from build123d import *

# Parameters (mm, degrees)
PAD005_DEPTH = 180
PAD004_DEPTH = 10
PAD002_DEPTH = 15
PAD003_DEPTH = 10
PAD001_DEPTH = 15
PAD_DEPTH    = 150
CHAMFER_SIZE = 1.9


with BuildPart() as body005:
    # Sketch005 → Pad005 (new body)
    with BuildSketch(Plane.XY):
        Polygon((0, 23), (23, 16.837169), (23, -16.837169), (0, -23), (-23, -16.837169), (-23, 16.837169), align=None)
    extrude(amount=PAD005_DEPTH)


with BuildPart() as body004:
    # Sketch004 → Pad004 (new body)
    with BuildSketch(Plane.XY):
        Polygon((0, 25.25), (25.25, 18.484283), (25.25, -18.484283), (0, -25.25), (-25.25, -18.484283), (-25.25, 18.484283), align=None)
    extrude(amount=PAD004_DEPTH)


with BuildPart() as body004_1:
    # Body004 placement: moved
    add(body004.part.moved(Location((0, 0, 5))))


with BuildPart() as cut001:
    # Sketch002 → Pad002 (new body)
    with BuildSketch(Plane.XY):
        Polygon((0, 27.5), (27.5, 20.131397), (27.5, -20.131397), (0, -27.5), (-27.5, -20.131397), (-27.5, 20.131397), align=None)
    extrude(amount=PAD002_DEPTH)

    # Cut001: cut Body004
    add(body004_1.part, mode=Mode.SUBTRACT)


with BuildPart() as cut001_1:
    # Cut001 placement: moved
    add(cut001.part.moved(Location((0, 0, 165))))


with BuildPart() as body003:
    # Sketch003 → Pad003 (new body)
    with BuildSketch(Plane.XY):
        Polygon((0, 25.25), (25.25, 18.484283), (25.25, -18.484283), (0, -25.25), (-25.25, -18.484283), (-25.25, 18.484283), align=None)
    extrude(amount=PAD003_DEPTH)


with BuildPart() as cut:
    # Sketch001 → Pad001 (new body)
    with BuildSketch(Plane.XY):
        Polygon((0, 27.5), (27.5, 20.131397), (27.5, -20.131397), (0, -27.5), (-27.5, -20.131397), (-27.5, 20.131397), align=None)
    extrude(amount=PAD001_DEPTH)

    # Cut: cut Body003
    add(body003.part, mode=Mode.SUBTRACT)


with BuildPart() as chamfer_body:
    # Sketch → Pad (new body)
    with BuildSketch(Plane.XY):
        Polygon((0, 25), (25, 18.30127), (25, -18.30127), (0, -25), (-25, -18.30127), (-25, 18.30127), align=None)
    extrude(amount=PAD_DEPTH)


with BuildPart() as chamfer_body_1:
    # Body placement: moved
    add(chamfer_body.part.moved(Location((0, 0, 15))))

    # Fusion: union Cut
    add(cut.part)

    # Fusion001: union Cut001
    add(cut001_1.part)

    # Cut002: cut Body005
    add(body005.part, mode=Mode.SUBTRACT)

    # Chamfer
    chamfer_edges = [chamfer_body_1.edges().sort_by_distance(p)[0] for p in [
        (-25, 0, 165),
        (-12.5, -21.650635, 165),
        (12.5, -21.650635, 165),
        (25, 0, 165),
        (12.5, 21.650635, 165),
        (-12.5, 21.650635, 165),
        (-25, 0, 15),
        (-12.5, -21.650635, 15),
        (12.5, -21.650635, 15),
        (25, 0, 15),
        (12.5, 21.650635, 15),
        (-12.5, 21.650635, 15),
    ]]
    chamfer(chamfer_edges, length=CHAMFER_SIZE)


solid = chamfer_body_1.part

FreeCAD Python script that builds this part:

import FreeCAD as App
import Part
import Sketcher
Q = App.Units.Quantity


def edges_at(feature, points):
    """Names of the edges that pass closest to the given points."""
    edges = feature.Shape.Edges
    near = lambda p: min(range(len(edges)), key=lambda i: edges[i].distToShape(Part.Vertex(*p))[0])
    return sorted({f"Edge{near(p) + 1}" for p in points})

doc = App.newDocument("Part")
body = doc.addObject("PartDesign::Body", "Body")

# Sketch on XY plane
sketch1 = doc.addObject("Sketcher::SketchObject", "Sketch")
body.addObject(sketch1)
sketch1.AttachmentSupport = (doc.XY_Plane, [""])
sketch1.MapMode = "FlatFace"
sketch1.addGeometry(Part.LineSegment(App.Vector(23, 17, 0), App.Vector(0, 23, 0)), False)
sketch1.addGeometry(Part.LineSegment(App.Vector(0, 23, 0), App.Vector(-23, 17, 0)), False)
sketch1.addGeometry(Part.LineSegment(App.Vector(-23, 17, 0), App.Vector(-23, -17, 0)), False)
sketch1.addGeometry(Part.LineSegment(App.Vector(-23, -17, 0), App.Vector(0, -23, 0)), False)
sketch1.addGeometry(Part.LineSegment(App.Vector(0, -23, 0), App.Vector(23, -17, 0)), False)
sketch1.addGeometry(Part.LineSegment(App.Vector(23, -17, 0), App.Vector(23, 17, 0)), False)
sketch1.addConstraint(Sketcher.Constraint("Coincident", 0, 2, 1, 1))
sketch1.addConstraint(Sketcher.Constraint("Coincident", 1, 2, 2, 1))
sketch1.addConstraint(Sketcher.Constraint("Coincident", 2, 2, 3, 1))
sketch1.addConstraint(Sketcher.Constraint("Coincident", 3, 2, 4, 1))
sketch1.addConstraint(Sketcher.Constraint("Coincident", 4, 2, 5, 1))
sketch1.addConstraint(Sketcher.Constraint("Coincident", 5, 2, 0, 1))
sketch1.addConstraint(Sketcher.Constraint("Vertical", 2))
sketch1.addConstraint(Sketcher.Constraint("Vertical", 5))
sketch1.addConstraint(Sketcher.Constraint("Symmetric", 0, 2, 3, 2, -1, 1))
sketch1.addConstraint(Sketcher.Constraint("Symmetric", 1, 2, 4, 2, -1, 1))
sketch1.addConstraint(Sketcher.Constraint("PointOnObject", 0, 2, -2))
sketch1.addConstraint(Sketcher.Constraint("Parallel", 0, 3))
sketch1.addConstraint(Sketcher.Constraint("Horizontal", 2, 2, 4, 2))
sketch1.addConstraint(Sketcher.Constraint("Angle", 0, Q("165.000001 deg")))
sketch1.addConstraint(Sketcher.Constraint("DistanceY", -1, 1, 0, 2, Q("23 mm")))
sketch1.addConstraint(Sketcher.Constraint("DistanceX", 1, 2, -1, 1, Q("23 mm")))
pad1 = doc.addObject("PartDesign::Pad", "Pad")
body.addObject(pad1)
pad1.Profile = sketch1
pad1.Length = 180
body2 = doc.addObject("PartDesign::Body", "Body001")

# Sketch on XY plane
sketch2 = doc.addObject("Sketcher::SketchObject", "Sketch001")
body2.addObject(sketch2)
sketch2.AttachmentSupport = (doc.getObject("XY_Plane001"), [""])
sketch2.MapMode = "FlatFace"
sketch2.addGeometry(Part.LineSegment(App.Vector(25, 18, 0), App.Vector(0, 25, 0)), False)
sketch2.addGeometry(Part.LineSegment(App.Vector(0, 25, 0), App.Vector(-25, 18, 0)), False)
sketch2.addGeometry(Part.LineSegment(App.Vector(-25, 18, 0), App.Vector(-25, -18, 0)), False)
sketch2.addGeometry(Part.LineSegment(App.Vector(-25, -18, 0), App.Vector(0, -25, 0)), False)
sketch2.addGeometry(Part.LineSegment(App.Vector(0, -25, 0), App.Vector(25, -18, 0)), False)
sketch2.addGeometry(Part.LineSegment(App.Vector(25, -18, 0), App.Vector(25, 18, 0)), False)
sketch2.addConstraint(Sketcher.Constraint("Coincident", 0, 2, 1, 1))
sketch2.addConstraint(Sketcher.Constraint("Coincident", 1, 2, 2, 1))
sketch2.addConstraint(Sketcher.Constraint("Coincident", 2, 2, 3, 1))
sketch2.addConstraint(Sketcher.Constraint("Coincident", 3, 2, 4, 1))
sketch2.addConstraint(Sketcher.Constraint("Coincident", 4, 2, 5, 1))
sketch2.addConstraint(Sketcher.Constraint("Coincident", 5, 2, 0, 1))
sketch2.addConstraint(Sketcher.Constraint("Vertical", 2))
sketch2.addConstraint(Sketcher.Constraint("Vertical", 5))
sketch2.addConstraint(Sketcher.Constraint("Symmetric", 0, 2, 3, 2, -1, 1))
sketch2.addConstraint(Sketcher.Constraint("Symmetric", 1, 2, 4, 2, -1, 1))
sketch2.addConstraint(Sketcher.Constraint("PointOnObject", 0, 2, -2))
sketch2.addConstraint(Sketcher.Constraint("Parallel", 0, 3))
sketch2.addConstraint(Sketcher.Constraint("Horizontal", 2, 2, 4, 2))
sketch2.addConstraint(Sketcher.Constraint("Angle", 0, Q("165 deg")))
sketch2.addConstraint(Sketcher.Constraint("DistanceY", 3, 2, 0, 2, Q("50.5 mm")))
sketch2.addConstraint(Sketcher.Constraint("DistanceX", 2, 2, 4, 2, Q("50.5 mm")))
pad2 = doc.addObject("PartDesign::Pad", "Pad001")
body2.addObject(pad2)
pad2.Profile = sketch2
pad2.Length = 10
body3 = doc.addObject("PartDesign::Body", "Body002")
doc.recompute()

body2.Placement = App.Placement(App.Vector(0, 0, 5), App.Rotation(App.Vector(0, 0, 1), 0))
boolean = doc.addObject("PartDesign::Boolean", "Boolean")
body3.addObject(boolean)
boolean.Type = "Fuse"
boolean.addObjects([body2])
body4 = doc.addObject("PartDesign::Body", "Body003")

# Sketch on XY plane
sketch3 = doc.addObject("Sketcher::SketchObject", "Sketch002")
body4.addObject(sketch3)
sketch3.AttachmentSupport = (doc.getObject("XY_Plane003"), [""])
sketch3.MapMode = "FlatFace"
sketch3.addGeometry(Part.LineSegment(App.Vector(28, 20, 0), App.Vector(0, 28, 0)), False)
sketch3.addGeometry(Part.LineSegment(App.Vector(0, 28, 0), App.Vector(-28, 20, 0)), False)
sketch3.addGeometry(Part.LineSegment(App.Vector(-28, 20, 0), App.Vector(-28, -20, 0)), False)
sketch3.addGeometry(Part.LineSegment(App.Vector(-28, -20, 0), App.Vector(0, -28, 0)), False)
sketch3.addGeometry(Part.LineSegment(App.Vector(0, -28, 0), App.Vector(28, -20, 0)), False)
sketch3.addGeometry(Part.LineSegment(App.Vector(28, -20, 0), App.Vector(28, 20, 0)), False)
sketch3.addConstraint(Sketcher.Constraint("Coincident", 0, 2, 1, 1))
sketch3.addConstraint(Sketcher.Constraint("Coincident", 1, 2, 2, 1))
sketch3.addConstraint(Sketcher.Constraint("Coincident", 2, 2, 3, 1))
sketch3.addConstraint(Sketcher.Constraint("Coincident", 3, 2, 4, 1))
sketch3.addConstraint(Sketcher.Constraint("Coincident", 4, 2, 5, 1))
sketch3.addConstraint(Sketcher.Constraint("Coincident", 5, 2, 0, 1))
sketch3.addConstraint(Sketcher.Constraint("Vertical", 2))
sketch3.addConstraint(Sketcher.Constraint("Vertical", 5))
sketch3.addConstraint(Sketcher.Constraint("Symmetric", 0, 2, 3, 2, -1, 1))
sketch3.addConstraint(Sketcher.Constraint("Symmetric", 1, 2, 4, 2, -1, 1))
sketch3.addConstraint(Sketcher.Constraint("PointOnObject", 0, 2, -2))
sketch3.addConstraint(Sketcher.Constraint("Parallel", 0, 3))
sketch3.addConstraint(Sketcher.Constraint("Horizontal", 2, 2, 4, 2))
sketch3.addConstraint(Sketcher.Constraint("Angle", 0, Q("165 deg")))
sketch3.addConstraint(Sketcher.Constraint("DistanceY", 3, 2, 0, 2, Q("55 mm")))
sketch3.addConstraint(Sketcher.Constraint("DistanceX", 2, 2, 4, 2, Q("55 mm")))
pad3 = doc.addObject("PartDesign::Pad", "Pad002")
body4.addObject(pad3)
pad3.Profile = sketch3
pad3.Length = 15
doc.recompute()

boolean2 = doc.addObject("PartDesign::Boolean", "Boolean001")
body4.addObject(boolean2)
boolean2.Type = "Cut"
boolean2.addObjects([body3])
body5 = doc.addObject("PartDesign::Body", "Body004")
doc.recompute()

body4.Placement = App.Placement(App.Vector(0, 0, 165), App.Rotation(App.Vector(0, 0, 1), 0))
boolean3 = doc.addObject("PartDesign::Boolean", "Boolean002")
body5.addObject(boolean3)
boolean3.Type = "Fuse"
boolean3.addObjects([body4])
body6 = doc.addObject("PartDesign::Body", "Body005")

# Sketch on XY plane
sketch4 = doc.addObject("Sketcher::SketchObject", "Sketch003")
body6.addObject(sketch4)
sketch4.AttachmentSupport = (doc.getObject("XY_Plane005"), [""])
sketch4.MapMode = "FlatFace"
sketch4.addGeometry(Part.LineSegment(App.Vector(25, 18, 0), App.Vector(0, 25, 0)), False)
sketch4.addGeometry(Part.LineSegment(App.Vector(0, 25, 0), App.Vector(-25, 18, 0)), False)
sketch4.addGeometry(Part.LineSegment(App.Vector(-25, 18, 0), App.Vector(-25, -18, 0)), False)
sketch4.addGeometry(Part.LineSegment(App.Vector(-25, -18, 0), App.Vector(0, -25, 0)), False)
sketch4.addGeometry(Part.LineSegment(App.Vector(0, -25, 0), App.Vector(25, -18, 0)), False)
sketch4.addGeometry(Part.LineSegment(App.Vector(25, -18, 0), App.Vector(25, 18, 0)), False)
sketch4.addConstraint(Sketcher.Constraint("Coincident", 0, 2, 1, 1))
sketch4.addConstraint(Sketcher.Constraint("Coincident", 1, 2, 2, 1))
sketch4.addConstraint(Sketcher.Constraint("Coincident", 2, 2, 3, 1))
sketch4.addConstraint(Sketcher.Constraint("Coincident", 3, 2, 4, 1))
sketch4.addConstraint(Sketcher.Constraint("Coincident", 4, 2, 5, 1))
sketch4.addConstraint(Sketcher.Constraint("Coincident", 5, 2, 0, 1))
sketch4.addConstraint(Sketcher.Constraint("Vertical", 2))
sketch4.addConstraint(Sketcher.Constraint("Vertical", 5))
sketch4.addConstraint(Sketcher.Constraint("Symmetric", 0, 2, 3, 2, -1, 1))
sketch4.addConstraint(Sketcher.Constraint("Symmetric", 1, 2, 4, 2, -1, 1))
sketch4.addConstraint(Sketcher.Constraint("PointOnObject", 0, 2, -2))
sketch4.addConstraint(Sketcher.Constraint("Parallel", 0, 3))
sketch4.addConstraint(Sketcher.Constraint("Horizontal", 2, 2, 4, 2))
sketch4.addConstraint(Sketcher.Constraint("Angle", 0, Q("165 deg")))
sketch4.addConstraint(Sketcher.Constraint("DistanceY", 3, 2, 0, 2, Q("50.5 mm")))
sketch4.addConstraint(Sketcher.Constraint("DistanceX", 2, 2, 4, 2, Q("50.5 mm")))
pad4 = doc.addObject("PartDesign::Pad", "Pad003")
body6.addObject(pad4)
pad4.Profile = sketch4
pad4.Length = 10
body7 = doc.addObject("PartDesign::Body", "Body006")

# Sketch on XY plane
sketch5 = doc.addObject("Sketcher::SketchObject", "Sketch004")
body7.addObject(sketch5)
sketch5.AttachmentSupport = (doc.getObject("XY_Plane006"), [""])
sketch5.MapMode = "FlatFace"
sketch5.addGeometry(Part.LineSegment(App.Vector(28, 20, 0), App.Vector(0, 28, 0)), False)
sketch5.addGeometry(Part.LineSegment(App.Vector(0, 28, 0), App.Vector(-28, 20, 0)), False)
sketch5.addGeometry(Part.LineSegment(App.Vector(-28, 20, 0), App.Vector(-28, -20, 0)), False)
sketch5.addGeometry(Part.LineSegment(App.Vector(-28, -20, 0), App.Vector(0, -28, 0)), False)
sketch5.addGeometry(Part.LineSegment(App.Vector(0, -28, 0), App.Vector(28, -20, 0)), False)
sketch5.addGeometry(Part.LineSegment(App.Vector(28, -20, 0), App.Vector(28, 20, 0)), False)
sketch5.addConstraint(Sketcher.Constraint("Coincident", 0, 2, 1, 1))
sketch5.addConstraint(Sketcher.Constraint("Coincident", 1, 2, 2, 1))
sketch5.addConstraint(Sketcher.Constraint("Coincident", 2, 2, 3, 1))
sketch5.addConstraint(Sketcher.Constraint("Coincident", 3, 2, 4, 1))
sketch5.addConstraint(Sketcher.Constraint("Coincident", 4, 2, 5, 1))
sketch5.addConstraint(Sketcher.Constraint("Coincident", 5, 2, 0, 1))
sketch5.addConstraint(Sketcher.Constraint("Vertical", 2))
sketch5.addConstraint(Sketcher.Constraint("Vertical", 5))
sketch5.addConstraint(Sketcher.Constraint("Symmetric", 0, 2, 3, 2, -1, 1))
sketch5.addConstraint(Sketcher.Constraint("Symmetric", 1, 2, 4, 2, -1, 1))
sketch5.addConstraint(Sketcher.Constraint("PointOnObject", 0, 2, -2))
sketch5.addConstraint(Sketcher.Constraint("Parallel", 0, 3))
sketch5.addConstraint(Sketcher.Constraint("Horizontal", 2, 2, 4, 2))
sketch5.addConstraint(Sketcher.Constraint("Angle", 0, Q("165 deg")))
sketch5.addConstraint(Sketcher.Constraint("DistanceY", 3, 2, 0, 2, Q("55 mm")))
sketch5.addConstraint(Sketcher.Constraint("DistanceX", 2, 2, 4, 2, Q("55 mm")))
pad5 = doc.addObject("PartDesign::Pad", "Pad004")
body7.addObject(pad5)
pad5.Profile = sketch5
pad5.Length = 15
doc.recompute()

boolean4 = doc.addObject("PartDesign::Boolean", "Boolean003")
body7.addObject(boolean4)
boolean4.Type = "Cut"
boolean4.addObjects([body6])
body8 = doc.addObject("PartDesign::Body", "Body007")

# Sketch on XY plane
sketch6 = doc.addObject("Sketcher::SketchObject", "Sketch005")
body8.addObject(sketch6)
sketch6.AttachmentSupport = (doc.getObject("XY_Plane007"), [""])
sketch6.MapMode = "FlatFace"
sketch6.addGeometry(Part.LineSegment(App.Vector(25, 18, 0), App.Vector(0, 25, 0)), False)
sketch6.addGeometry(Part.LineSegment(App.Vector(0, 25, 0), App.Vector(-25, 18, 0)), False)
sketch6.addGeometry(Part.LineSegment(App.Vector(-25, 18, 0), App.Vector(-25, -18, 0)), False)
sketch6.addGeometry(Part.LineSegment(App.Vector(-25, -18, 0), App.Vector(0, -25, 0)), False)
sketch6.addGeometry(Part.LineSegment(App.Vector(0, -25, 0), App.Vector(25, -18, 0)), False)
sketch6.addGeometry(Part.LineSegment(App.Vector(25, -18, 0), App.Vector(25, 18, 0)), False)
sketch6.addConstraint(Sketcher.Constraint("Coincident", 0, 2, 1, 1))
sketch6.addConstraint(Sketcher.Constraint("Coincident", 1, 2, 2, 1))
sketch6.addConstraint(Sketcher.Constraint("Coincident", 2, 2, 3, 1))
sketch6.addConstraint(Sketcher.Constraint("Coincident", 3, 2, 4, 1))
sketch6.addConstraint(Sketcher.Constraint("Coincident", 4, 2, 5, 1))
sketch6.addConstraint(Sketcher.Constraint("Coincident", 5, 2, 0, 1))
sketch6.addConstraint(Sketcher.Constraint("Vertical", 2))
sketch6.addConstraint(Sketcher.Constraint("Vertical", 5))
sketch6.addConstraint(Sketcher.Constraint("Symmetric", 0, 2, 3, 2, -1, 1))
sketch6.addConstraint(Sketcher.Constraint("Symmetric", 1, 2, 4, 2, -1, 1))
sketch6.addConstraint(Sketcher.Constraint("PointOnObject", 0, 2, -2))
sketch6.addConstraint(Sketcher.Constraint("Parallel", 0, 3))
sketch6.addConstraint(Sketcher.Constraint("Horizontal", 2, 2, 4, 2))
sketch6.addConstraint(Sketcher.Constraint("Angle", 0, Q("165 deg")))
sketch6.addConstraint(Sketcher.Constraint("DistanceY", -1, 1, 0, 2, Q("25 mm")))
sketch6.addConstraint(Sketcher.Constraint("DistanceX", 1, 2, -1, 1, Q("25 mm")))
pad6 = doc.addObject("PartDesign::Pad", "Pad005")
body8.addObject(pad6)
pad6.Profile = sketch6
pad6.Length = 150
body9 = doc.addObject("PartDesign::Body", "Body008")
doc.recompute()

body8.Placement = App.Placement(App.Vector(0, 0, 15), App.Rotation(App.Vector(0, 0, 1), 0))
boolean5 = doc.addObject("PartDesign::Boolean", "Boolean004")
body9.addObject(boolean5)
boolean5.Type = "Fuse"
boolean5.addObjects([body8])
doc.recompute()

boolean6 = doc.addObject("PartDesign::Boolean", "Boolean005")
body9.addObject(boolean6)
boolean6.Type = "Fuse"
boolean6.addObjects([body7])
doc.recompute()

boolean7 = doc.addObject("PartDesign::Boolean", "Boolean006")
body9.addObject(boolean7)
boolean7.Type = "Fuse"
boolean7.addObjects([body5])
doc.recompute()

boolean8 = doc.addObject("PartDesign::Boolean", "Boolean007")
body9.addObject(boolean8)
boolean8.Type = "Cut"
boolean8.addObjects([body])
doc.recompute()

chamfer = doc.addObject("PartDesign::Chamfer", "Chamfer")
body9.addObject(chamfer)
chamfer.Base = (boolean8, edges_at(boolean8, [
    (-25, 0, 165),
    (-12.5, -21.651, 165),
    (12.5, -21.651, 165),
    (25, 0, 165),
    (12.5, 21.651, 165),
    (-12.5, 21.651, 165),
    (-25, 0, 15),
    (-12.5, -21.651, 15),
    (12.5, -21.651, 15),
    (25, 0, 15),
    (12.5, 21.651, 15),
    (-12.5, 21.651, 15),
]))
chamfer.Size = 1.9

doc.recompute()
